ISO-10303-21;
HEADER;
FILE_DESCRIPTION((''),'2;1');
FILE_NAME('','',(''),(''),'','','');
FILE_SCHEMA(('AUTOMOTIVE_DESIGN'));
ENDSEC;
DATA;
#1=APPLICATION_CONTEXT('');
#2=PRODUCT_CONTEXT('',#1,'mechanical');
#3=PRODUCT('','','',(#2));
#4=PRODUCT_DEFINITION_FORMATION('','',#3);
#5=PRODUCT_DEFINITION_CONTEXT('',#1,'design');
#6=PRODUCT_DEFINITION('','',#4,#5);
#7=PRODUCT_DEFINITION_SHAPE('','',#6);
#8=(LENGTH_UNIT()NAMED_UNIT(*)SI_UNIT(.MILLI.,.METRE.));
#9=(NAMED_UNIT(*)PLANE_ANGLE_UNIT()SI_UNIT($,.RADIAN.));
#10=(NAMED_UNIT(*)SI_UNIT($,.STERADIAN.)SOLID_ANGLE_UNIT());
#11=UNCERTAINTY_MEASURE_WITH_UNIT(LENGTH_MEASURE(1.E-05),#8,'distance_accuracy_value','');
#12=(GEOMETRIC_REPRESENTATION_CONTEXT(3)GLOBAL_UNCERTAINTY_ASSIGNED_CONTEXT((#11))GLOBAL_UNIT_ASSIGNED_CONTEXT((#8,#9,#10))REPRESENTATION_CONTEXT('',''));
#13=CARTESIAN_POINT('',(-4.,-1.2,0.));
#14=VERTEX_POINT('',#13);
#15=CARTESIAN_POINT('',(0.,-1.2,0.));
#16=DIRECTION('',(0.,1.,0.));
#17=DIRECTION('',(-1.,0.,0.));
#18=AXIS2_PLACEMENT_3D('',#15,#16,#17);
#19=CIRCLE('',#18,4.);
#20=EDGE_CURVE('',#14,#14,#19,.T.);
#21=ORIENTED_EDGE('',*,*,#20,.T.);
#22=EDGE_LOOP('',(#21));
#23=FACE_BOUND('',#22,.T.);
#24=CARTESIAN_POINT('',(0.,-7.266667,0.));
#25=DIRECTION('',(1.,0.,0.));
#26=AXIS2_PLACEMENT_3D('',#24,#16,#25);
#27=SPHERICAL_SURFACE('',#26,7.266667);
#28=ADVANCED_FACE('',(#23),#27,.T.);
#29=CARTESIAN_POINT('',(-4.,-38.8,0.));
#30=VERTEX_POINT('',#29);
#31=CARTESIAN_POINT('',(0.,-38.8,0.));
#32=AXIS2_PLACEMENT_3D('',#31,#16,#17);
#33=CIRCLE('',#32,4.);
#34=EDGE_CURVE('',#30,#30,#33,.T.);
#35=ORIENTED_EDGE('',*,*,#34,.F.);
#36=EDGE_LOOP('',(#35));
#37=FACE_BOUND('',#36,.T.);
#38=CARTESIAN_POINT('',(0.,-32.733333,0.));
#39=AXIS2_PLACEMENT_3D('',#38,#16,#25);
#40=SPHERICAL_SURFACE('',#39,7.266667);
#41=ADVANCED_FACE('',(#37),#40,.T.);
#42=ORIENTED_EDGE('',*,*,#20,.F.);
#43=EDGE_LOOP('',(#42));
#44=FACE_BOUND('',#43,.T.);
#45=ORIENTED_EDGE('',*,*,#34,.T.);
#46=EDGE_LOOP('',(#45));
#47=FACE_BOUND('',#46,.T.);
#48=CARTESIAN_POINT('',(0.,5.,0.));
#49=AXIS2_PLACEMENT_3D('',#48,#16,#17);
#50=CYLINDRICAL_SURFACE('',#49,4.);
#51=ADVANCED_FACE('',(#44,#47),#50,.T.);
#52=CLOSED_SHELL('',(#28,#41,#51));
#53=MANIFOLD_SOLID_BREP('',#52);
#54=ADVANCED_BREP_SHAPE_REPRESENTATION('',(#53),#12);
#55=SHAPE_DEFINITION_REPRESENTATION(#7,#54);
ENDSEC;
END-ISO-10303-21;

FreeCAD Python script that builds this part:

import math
import FreeCAD as App
import Part
import Sketcher

V = App.Vector

doc = App.newDocument("Part")
body = doc.addObject("PartDesign::Body", "Body")

sketch1 = body.newObject("Sketcher::SketchObject", "Sketch")
sketch1.AttachmentSupport = (doc.getObject("XY_Plane"), [""])
sketch1.MapMode = "FlatFace"
sketch1.addGeometry([
    Part.LineSegment(V(4, -38.8, 0), V(4, -1.2, 0)),
    Part.ArcOfCircle(Part.Circle(V(0, -7.3, 0), V(0, 0, 1), 7.3), math.radians(57), math.radians(90)),
    Part.LineSegment(V(0, 0, 0), V(0, -40, 0)),
    Part.ArcOfCircle(Part.Circle(V(0, -32.7, 0), V(0, 0, 1), 7.3), math.radians(-90), math.radians(-57)),
], False)
sketch1.addConstraint([
    Sketcher.Constraint("Coincident", 0, 2, 1, 1),
    Sketcher.Constraint("Coincident", 1, 2, 2, 1),
    Sketcher.Constraint("Coincident", 2, 2, 3, 1),
    Sketcher.Constraint("Coincident", 3, 2, 0, 1),
    Sketcher.Constraint("Vertical", 0),
    Sketcher.Constraint("Vertical", 2),
    Sketcher.Constraint("Coincident", 1, 2, -1, 1),
    Sketcher.Constraint("Equal", 1, 3),
    Sketcher.Constraint("PointOnObject", 1, 3, -2),
    Sketcher.Constraint("PointOnObject", 3, 3, -2),
    Sketcher.Constraint("DistanceY", 2, 2, 2, 1, 40.0),
    Sketcher.Constraint("DistanceY", 0, 1, 0, 2, 37.6),
    Sketcher.Constraint("DistanceX", -1, 1, 0, 2, 4.0),
])
revolution = body.newObject("PartDesign::Revolution", "Revolution")
revolution.Profile = sketch1
revolution.ReferenceAxis = (sketch1, ["V_Axis"])
revolution.Angle = 360

doc.recompute()
